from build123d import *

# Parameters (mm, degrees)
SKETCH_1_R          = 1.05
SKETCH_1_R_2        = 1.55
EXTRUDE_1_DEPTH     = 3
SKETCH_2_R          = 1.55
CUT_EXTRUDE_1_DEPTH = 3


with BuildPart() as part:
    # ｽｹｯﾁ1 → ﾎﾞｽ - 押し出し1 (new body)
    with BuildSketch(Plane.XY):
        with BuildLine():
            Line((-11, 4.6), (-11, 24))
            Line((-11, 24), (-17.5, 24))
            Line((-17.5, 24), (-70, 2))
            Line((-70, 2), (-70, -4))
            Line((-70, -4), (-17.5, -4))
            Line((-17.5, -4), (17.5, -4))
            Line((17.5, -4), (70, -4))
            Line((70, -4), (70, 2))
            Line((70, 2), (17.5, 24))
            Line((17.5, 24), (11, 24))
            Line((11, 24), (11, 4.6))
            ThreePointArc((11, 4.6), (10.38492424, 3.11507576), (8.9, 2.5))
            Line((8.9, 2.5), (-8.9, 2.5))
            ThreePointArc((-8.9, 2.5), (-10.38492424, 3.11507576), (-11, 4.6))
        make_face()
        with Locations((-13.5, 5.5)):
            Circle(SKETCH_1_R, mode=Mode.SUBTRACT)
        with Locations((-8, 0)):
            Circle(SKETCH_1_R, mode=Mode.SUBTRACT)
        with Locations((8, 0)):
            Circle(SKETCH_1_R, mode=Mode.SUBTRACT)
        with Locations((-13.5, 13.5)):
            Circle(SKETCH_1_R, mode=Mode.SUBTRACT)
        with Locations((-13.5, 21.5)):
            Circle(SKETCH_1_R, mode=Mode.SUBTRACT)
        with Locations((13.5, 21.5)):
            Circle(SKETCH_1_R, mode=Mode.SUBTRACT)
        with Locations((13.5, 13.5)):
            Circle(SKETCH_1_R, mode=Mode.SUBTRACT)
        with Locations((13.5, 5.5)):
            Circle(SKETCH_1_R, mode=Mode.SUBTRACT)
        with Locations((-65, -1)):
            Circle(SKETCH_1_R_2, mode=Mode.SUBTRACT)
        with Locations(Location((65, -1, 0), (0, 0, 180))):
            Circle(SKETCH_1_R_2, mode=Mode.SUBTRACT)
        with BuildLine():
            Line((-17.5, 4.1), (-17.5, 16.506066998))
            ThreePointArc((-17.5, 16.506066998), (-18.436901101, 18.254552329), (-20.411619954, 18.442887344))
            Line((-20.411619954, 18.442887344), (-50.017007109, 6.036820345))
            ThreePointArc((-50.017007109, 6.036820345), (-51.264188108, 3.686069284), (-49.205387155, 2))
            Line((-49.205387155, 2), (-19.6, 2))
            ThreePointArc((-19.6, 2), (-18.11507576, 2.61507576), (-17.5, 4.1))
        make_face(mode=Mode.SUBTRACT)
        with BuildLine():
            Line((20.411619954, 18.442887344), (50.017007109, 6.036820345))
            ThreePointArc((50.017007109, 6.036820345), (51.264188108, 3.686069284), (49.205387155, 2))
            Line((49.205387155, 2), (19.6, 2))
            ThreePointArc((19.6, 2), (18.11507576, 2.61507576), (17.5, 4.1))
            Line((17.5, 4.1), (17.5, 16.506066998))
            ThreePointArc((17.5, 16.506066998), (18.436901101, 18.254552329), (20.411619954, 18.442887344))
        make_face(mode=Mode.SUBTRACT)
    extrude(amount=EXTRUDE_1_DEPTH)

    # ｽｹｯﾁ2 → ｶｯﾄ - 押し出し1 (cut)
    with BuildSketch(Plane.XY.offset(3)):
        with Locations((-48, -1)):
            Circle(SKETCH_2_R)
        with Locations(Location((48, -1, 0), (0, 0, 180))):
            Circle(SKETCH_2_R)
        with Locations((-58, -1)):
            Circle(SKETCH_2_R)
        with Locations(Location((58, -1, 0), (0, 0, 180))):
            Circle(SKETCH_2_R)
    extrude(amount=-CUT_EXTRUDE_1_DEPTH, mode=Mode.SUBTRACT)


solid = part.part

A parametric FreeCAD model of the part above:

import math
import FreeCAD as App
import Part
import Sketcher
from FreeCAD import Vector

doc = App.newDocument("Part")
body = doc.addObject("PartDesign::Body", "Body")

sketch1 = body.newObject("Sketcher::SketchObject", "Sketch")
sketch1.AttachmentSupport = (doc.getObject("XY_Plane"), [""])
sketch1.MapMode = "FlatFace"
sketch1.addGeometry(Part.LineSegment(Vector(-11, 4.6, 0), Vector(-11, 24, 0)), False)
sketch1.addGeometry(Part.LineSegment(Vector(-11, 24, 0), Vector(-17.5, 24, 0)), False)
sketch1.addGeometry(Part.LineSegment(Vector(-17.5, 24, 0), Vector(-70, 2, 0)), False)
sketch1.addGeometry(Part.LineSegment(Vector(-70, 2, 0), Vector(-70, -4, 0)), False)
sketch1.addGeometry(Part.LineSegment(Vector(-70, -4, 0), Vector(70, -4, 0)), False)
sketch1.addGeometry(Part.LineSegment(Vector(70, -4, 0), Vector(70, 2, 0)), False)
sketch1.addGeometry(Part.LineSegment(Vector(70, 2, 0), Vector(17.5, 24, 0)), False)
sketch1.addGeometry(Part.LineSegment(Vector(17.5, 24, 0), Vector(11, 24, 0)), False)
sketch1.addGeometry(Part.LineSegment(Vector(11, 24, 0), Vector(11, 4.6, 0)), False)
sketch1.addGeometry(Part.ArcOfCircle(Part.Circle(Vector(8.9, 4.6, 0), Vector(0, 0, 1), 2.1), math.radians(-90), math.radians(0)), False)
sketch1.addGeometry(Part.LineSegment(Vector(8.9, 2.5, 0), Vector(-8.9, 2.5, 0)), False)
sketch1.addGeometry(Part.ArcOfCircle(Part.Circle(Vector(-8.9, 4.6, 0), Vector(0, 0, 1), 2.1), math.radians(-180), math.radians(-90)), False)
sketch1.addGeometry(Part.Circle(Vector(-65, -1, 0), Vector(0, 0, 1), 1.6), False)
sketch1.addGeometry(Part.Circle(Vector(-8, 0, 0), Vector(0, 0, 1), 1.1), False)
sketch1.addGeometry(Part.Circle(Vector(-13.5, 5.5, 0), Vector(0, 0, 1), 1.1), False)
sketch1.addGeometry(Part.Circle(Vector(8, 0, 0), Vector(0, 0, 1), 1.1), False)
sketch1.addGeometry(Part.Circle(Vector(65, -1, 0), Vector(0, 0, 1), 1.6), False)
sketch1.addGeometry(Part.Circle(Vector(13.5, 5.5, 0), Vector(0, 0, 1), 1.1), False)
sketch1.addGeometry(Part.LineSegment(Vector(-17.5, 16.5, 0), Vector(-17.5, 4.1, 0)), False)
sketch1.addGeometry(Part.ArcOfCircle(Part.Circle(Vector(-19.6, 4.1, 0), Vector(0, 0, 1), 2.1), math.radians(-90), math.radians(0)), False)
sketch1.addGeometry(Part.LineSegment(Vector(-19.6, 2, 0), Vector(-49.2, 2, 0)), False)
sketch1.addGeometry(Part.ArcOfCircle(Part.Circle(Vector(-49.2, 4.1, 0), Vector(0, 0, 1), 2.1), math.radians(113), math.radians(270)), False)
sketch1.addGeometry(Part.LineSegment(Vector(-50, 6, 0), Vector(-20.4, 18.4, 0)), False)
sketch1.addGeometry(Part.ArcOfCircle(Part.Circle(Vector(-19.6, 16.5, 0), Vector(0, 0, 1), 2.1), math.radians(0), math.radians(113)), False)
sketch1.addGeometry(Part.Circle(Vector(-13.5, 13.5, 0), Vector(0, 0, 1), 1.1), False)
sketch1.addGeometry(Part.Circle(Vector(-13.5, 21.5, 0), Vector(0, 0, 1), 1.1), False)
sketch1.addGeometry(Part.Circle(Vector(13.5, 13.5, 0), Vector(0, 0, 1), 1.1), False)
sketch1.addGeometry(Part.ArcOfCircle(Part.Circle(Vector(19.6, 16.5, 0), Vector(0, 0, 1), 2.1), math.radians(67), math.radians(180)), False)
sketch1.addGeometry(Part.LineSegment(Vector(20.4, 18.4, 0), Vector(50, 6, 0)), False)
sketch1.addGeometry(Part.ArcOfCircle(Part.Circle(Vector(49.2, 4.1, 0), Vector(0, 0, 1), 2.1), math.radians(-90), math.radians(67)), False)
sketch1.addGeometry(Part.LineSegment(Vector(49.2, 2, 0), Vector(19.6, 2, 0)), False)
sketch1.addGeometry(Part.ArcOfCircle(Part.Circle(Vector(19.6, 4.1, 0), Vector(0, 0, 1), 2.1), math.radians(-180), math.radians(-90)), False)
sketch1.addGeometry(Part.LineSegment(Vector(17.5, 4.1, 0), Vector(17.5, 16.5, 0)), False)
sketch1.addGeometry(Part.Circle(Vector(13.5, 21.5, 0), Vector(0, 0, 1), 1.1), False)
sketch1.addConstraint(Sketcher.Constraint("Coincident", 0, 2, 1, 1))
sketch1.addConstraint(Sketcher.Constraint("Coincident", 1, 2, 2, 1))
sketch1.addConstraint(Sketcher.Constraint("Coincident", 2, 2, 3, 1))
sketch1.addConstraint(Sketcher.Constraint("Coincident", 3, 2, 4, 1))
sketch1.addConstraint(Sketcher.Constraint("Coincident", 4, 2, 5, 1))
sketch1.addConstraint(Sketcher.Constraint("Coincident", 5, 2, 6, 1))
sketch1.addConstraint(Sketcher.Constraint("Coincident", 6, 2, 7, 1))
sketch1.addConstraint(Sketcher.Constraint("Coincident", 7, 2, 8, 1))
sketch1.addConstraint(Sketcher.Constraint("Tangent", 8, 2, 9, 2))
sketch1.addConstraint(Sketcher.Constraint("Tangent", 9, 1, 10, 1))
sketch1.addConstraint(Sketcher.Constraint("Tangent", 10, 2, 11, 2))
sketch1.addConstraint(Sketcher.Constraint("Tangent", 11, 1, 0, 1))
sketch1.addConstraint(Sketcher.Constraint("Tangent", 18, 2, 19, 2))
sketch1.addConstraint(Sketcher.Constraint("Tangent", 19, 1, 20, 1))
sketch1.addConstraint(Sketcher.Constraint("Tangent", 20, 2, 21, 2))
sketch1.addConstraint(Sketcher.Constraint("Tangent", 21, 1, 22, 1))
sketch1.addConstraint(Sketcher.Constraint("Tangent", 22, 2, 23, 2))
sketch1.addConstraint(Sketcher.Constraint("Tangent", 23, 1, 18, 1))
sketch1.addConstraint(Sketcher.Constraint("Tangent", 27, 1, 28, 1))
sketch1.addConstraint(Sketcher.Constraint("Tangent", 28, 2, 29, 2))
sketch1.addConstraint(Sketcher.Constraint("Tangent", 29, 1, 30, 1))
sketch1.addConstraint(Sketcher.Constraint("Tangent", 30, 2, 31, 2))
sketch1.addConstraint(Sketcher.Constraint("Tangent", 31, 1, 32, 1))
sketch1.addConstraint(Sketcher.Constraint("Tangent", 32, 2, 27, 2))
sketch1.addConstraint(Sketcher.Constraint("Vertical", 0))
sketch1.addConstraint(Sketcher.Constraint("Horizontal", 1))
sketch1.addConstraint(Sketcher.Constraint("Vertical", 3))
sketch1.addConstraint(Sketcher.Constraint("Horizontal", 4))
sketch1.addConstraint(Sketcher.Constraint("Vertical", 5))
sketch1.addConstraint(Sketcher.Constraint("Horizontal", 7))
sketch1.addConstraint(Sketcher.Constraint("Vertical", 8))
sketch1.addConstraint(Sketcher.Constraint("Horizontal", 10))
sketch1.addConstraint(Sketcher.Constraint("Vertical", 18))
sketch1.addConstraint(Sketcher.Constraint("Horizontal", 20))
sketch1.addConstraint(Sketcher.Constraint("Horizontal", 30))
sketch1.addConstraint(Sketcher.Constraint("Vertical", 32))
sketch1.addConstraint(Sketcher.Constraint("Equal", 9, 11))
sketch1.addConstraint(Sketcher.Constraint("Equal", 13, 14))
sketch1.addConstraint(Sketcher.Constraint("Equal", 14, 15))
sketch1.addConstraint(Sketcher.Constraint("Equal", 12, 16))
sketch1.addConstraint(Sketcher.Constraint("Equal", 15, 17))
sketch1.addConstraint(Sketcher.Constraint("Equal", 11, 19))
sketch1.addConstraint(Sketcher.Constraint("Equal", 19, 21))
sketch1.addConstraint(Sketcher.Constraint("Equal", 21, 23))
sketch1.addConstraint(Sketcher.Constraint("Equal", 17, 24))
sketch1.addConstraint(Sketcher.Constraint("Equal", 24, 25))
sketch1.addConstraint(Sketcher.Constraint("Equal", 25, 26))
sketch1.addConstraint(Sketcher.Constraint("Equal", 23, 27))
sketch1.addConstraint(Sketcher.Constraint("Equal", 27, 29))
sketch1.addConstraint(Sketcher.Constraint("Equal", 29, 31))
sketch1.addConstraint(Sketcher.Constraint("Equal", 26, 33))
sketch1.addConstraint(Sketcher.Constraint("Symmetric", 13, 3, 15, 3, -1, 1))
sketch1.addConstraint(Sketcher.Constraint("Symmetric", 12, 3, 16, 3, -2))
sketch1.addConstraint(Sketcher.Constraint("Symmetric", 14, 3, 17, 3, -2))
sketch1.addConstraint(Sketcher.Constraint("Symmetric", 24, 3, 26, 3, -2))
sketch1.addConstraint(Sketcher.Constraint("Symmetric", 23, 3, 27, 3, -2))
sketch1.addConstraint(Sketcher.Constraint("Symmetric", 21, 3, 29, 3, -2))
sketch1.addConstraint(Sketcher.Constraint("Symmetric", 25, 3, 33, 3, -2))
sketch1.addConstraint(Sketcher.Constraint("Symmetric", 2, 2, 5, 2, -2))
sketch1.addConstraint(Sketcher.Constraint("Symmetric", 1, 2, 6, 2, -2))
sketch1.addConstraint(Sketcher.Constraint("PointOnObject", 13, 3, -1))
sketch1.addConstraint(Sketcher.Constraint("Parallel", 2, 22))
sketch1.addConstraint(Sketcher.Constraint("Horizontal", 5, 2, 19, 1))
sketch1.addConstraint(Sketcher.Constraint("Vertical", 14, 3, 24, 3))
sketch1.addConstraint(Sketcher.Constraint("Vertical", 24, 3, 25, 3))
sketch1.addConstraint(Sketcher.Constraint("Vertical", 1, 2, 18, 2))
sketch1.addConstraint(Sketcher.Constraint("Equal", 1, 7))
sketch1.addConstraint(Sketcher.Constraint("Diameter", 12, 3.1))
sketch1.addConstraint(Sketcher.Constraint("Diameter", 13, 2.1))
sketch1.addConstraint(Sketcher.Constraint("Radius", 9, 2.1))
sketch1.addConstraint(Sketcher.Constraint("DistanceX", 4, 1, 4, 2, 140.0))
sketch1.addConstraint(Sketcher.Constraint("DistanceY", 3, 2, 3, 1, 6.0))
sketch1.addConstraint(Sketcher.Constraint("DistanceX", 1, 2, 1, 1, 6.5))
sketch1.addConstraint(Sketcher.Constraint("DistanceX", 10, 2, 10, 1, 17.8))
sketch1.addConstraint(Sketcher.Constraint("DistanceY", 0, 1, 0, 2, 19.4))
sketch1.addConstraint(Sketcher.Constraint("DistanceX", 12, 3, -1, 1, 65.0))
sketch1.addConstraint(Sketcher.Constraint("DistanceY", 12, 3, -1, 1, 1.0))
sketch1.addConstraint(Sketcher.Constraint("DistanceX", 13, 3, -1, 1, 8.0))
sketch1.addConstraint(Sketcher.Constraint("DistanceY", -1, 1, 0, 2, 24.0))
sketch1.addConstraint(Sketcher.Constraint("DistanceY", -1, 1, 2, 2, 2.0))
sketch1.addConstraint(Sketcher.Constraint("DistanceX", 14, 3, 17, 3, 27.0))
sketch1.addConstraint(Sketcher.Constraint("DistanceY", 14, 3, 24, 3, 8.0))
sketch1.addConstraint(Sketcher.Constraint("DistanceY", 24, 3, 25, 3, 8.0))
sketch1.addConstraint(Sketcher.Constraint("DistanceY", 9, 1, 17, 3, 3.0))
sketch1.addConstraint(Sketcher.Constraint("Distance", 22, 32.09968))
pad1 = body.newObject("PartDesign::Pad", "Pad")
pad1.Profile = sketch1
pad1.Length = 3

sketch2 = body.newObject("Sketcher::SketchObject", "Sketch001")
sketch2.AttachmentSupport = (doc.getObject("XY_Plane"), [""])
sketch2.MapMode = "FlatFace"
sketch2.AttachmentOffset = App.Placement(Vector(0, 0, 3), App.Rotation())
sketch2.addGeometry(Part.Circle(Vector(-48, -1, 0), Vector(0, 0, 1), 1.6), False)
sketch2.addGeometry(Part.Circle(Vector(48, -1, 0), Vector(0, 0, 1), 1.6), False)
sketch2.addGeometry(Part.Circle(Vector(-58, -1, 0), Vector(0, 0, 1), 1.6), False)
sketch2.addGeometry(Part.Circle(Vector(58, -1, 0), Vector(0, 0, 1), 1.6), False)
sketch2.addConstraint(Sketcher.Constraint("Equal", 0, 1))
sketch2.addConstraint(Sketcher.Constraint("Equal", 1, 2))
sketch2.addConstraint(Sketcher.Constraint("Equal", 2, 3))
sketch2.addConstraint(Sketcher.Constraint("Symmetric", 0, 3, 1, 3, -2))
sketch2.addConstraint(Sketcher.Constraint("Symmetric", 2, 3, 3, 3, -2))
sketch2.addConstraint(Sketcher.Constraint("Horizontal", 1, 3, 2, 3))
sketch2.addConstraint(Sketcher.Constraint("Diameter", 0, 3.1))
sketch2.addConstraint(Sketcher.Constraint("DistanceX", 0, 3, -1, 1, 48.0))
sketch2.addConstraint(Sketcher.Constraint("DistanceY", 0, 3, -1, 1, 1.0))
sketch2.addConstraint(Sketcher.Constraint("DistanceX", 2, 3, -1, 1, 58.0))
pocket1 = body.newObject("PartDesign::Pocket", "Pocket")
pocket1.Profile = sketch2
pocket1.Length = 3

doc.recompute()
